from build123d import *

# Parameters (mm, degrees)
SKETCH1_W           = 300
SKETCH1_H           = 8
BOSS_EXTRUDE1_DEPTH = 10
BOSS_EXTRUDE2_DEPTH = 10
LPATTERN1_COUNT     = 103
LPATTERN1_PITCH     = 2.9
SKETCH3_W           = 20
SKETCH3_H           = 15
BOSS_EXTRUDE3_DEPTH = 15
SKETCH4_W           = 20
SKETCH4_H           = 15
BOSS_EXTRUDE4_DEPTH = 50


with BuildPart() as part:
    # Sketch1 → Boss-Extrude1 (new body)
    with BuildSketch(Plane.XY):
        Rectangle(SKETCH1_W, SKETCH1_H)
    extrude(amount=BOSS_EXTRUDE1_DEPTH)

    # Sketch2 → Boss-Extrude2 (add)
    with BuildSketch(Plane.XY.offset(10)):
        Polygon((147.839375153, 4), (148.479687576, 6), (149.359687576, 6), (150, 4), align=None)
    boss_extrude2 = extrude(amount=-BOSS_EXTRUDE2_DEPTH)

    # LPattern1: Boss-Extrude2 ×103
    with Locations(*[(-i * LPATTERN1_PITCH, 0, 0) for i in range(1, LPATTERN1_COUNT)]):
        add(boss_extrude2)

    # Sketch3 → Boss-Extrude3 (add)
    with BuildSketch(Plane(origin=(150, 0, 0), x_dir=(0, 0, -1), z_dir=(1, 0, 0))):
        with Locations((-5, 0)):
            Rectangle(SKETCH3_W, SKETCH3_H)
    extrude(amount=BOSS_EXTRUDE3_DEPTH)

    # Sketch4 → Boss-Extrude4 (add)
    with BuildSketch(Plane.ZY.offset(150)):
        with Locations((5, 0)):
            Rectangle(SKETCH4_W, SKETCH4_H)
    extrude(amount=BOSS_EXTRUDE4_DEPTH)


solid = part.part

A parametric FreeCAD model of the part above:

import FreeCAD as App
import Part
import Sketcher
Q = App.Units.Quantity

doc = App.newDocument("Part")
body = doc.addObject("PartDesign::Body", "Body")

# Sketch on XY plane
sketch1 = doc.addObject("Sketcher::SketchObject", "Sketch")
body.addObject(sketch1)
sketch1.AttachmentSupport = (doc.XY_Plane, [""])
sketch1.MapMode = "FlatFace"
sketch1.addGeometry([
    Part.LineSegment(App.Vector(-150, 4, 0), App.Vector(-150, -4, 0)),
    Part.LineSegment(App.Vector(-150, -4, 0), App.Vector(150, -4, 0)),
    Part.LineSegment(App.Vector(150, -4, 0), App.Vector(150, 4, 0)),
    Part.LineSegment(App.Vector(150, 4, 0), App.Vector(-150, 4, 0)),
], False)
sketch1.addConstraint([
    Sketcher.Constraint("Coincident", 0, 2, 1, 1),
    Sketcher.Constraint("Coincident", 1, 2, 2, 1),
    Sketcher.Constraint("Coincident", 2, 2, 3, 1),
    Sketcher.Constraint("Coincident", 3, 2, 0, 1),
    Sketcher.Constraint("Vertical", 0),
    Sketcher.Constraint("Horizontal", 1),
    Sketcher.Constraint("Vertical", 2),
    Sketcher.Constraint("Horizontal", 3),
    Sketcher.Constraint("Symmetric", 0, 2, 2, 2, -1, 1),
    Sketcher.Constraint("DistanceX", 1, 1, 1, 2, Q("300 mm")),
    Sketcher.Constraint("DistanceY", 0, 2, 0, 1, Q("8 mm")),
])
pad1 = doc.addObject("PartDesign::Pad", "Pad")
body.addObject(pad1)
pad1.Profile = sketch1
pad1.Length = 10

# Sketch on XY plane
sketch2 = doc.addObject("Sketcher::SketchObject", "Sketch001")
body.addObject(sketch2)
sketch2.AttachmentSupport = (doc.XY_Plane, [""])
sketch2.MapMode = "FlatFace"
sketch2.AttachmentOffset = App.Placement(App.Vector(0, 0, 10), App.Rotation())
sketch2.addGeometry([
    Part.LineSegment(App.Vector(148.479688, 6, 0), App.Vector(147.839375, 4, 0)),
    Part.LineSegment(App.Vector(147.839375, 4, 0), App.Vector(150, 4, 0)),
    Part.LineSegment(App.Vector(150, 4, 0), App.Vector(149.359688, 6, 0)),
    Part.LineSegment(App.Vector(149.359688, 6, 0), App.Vector(148.479688, 6, 0)),
], False)
sketch2.addConstraint([
    Sketcher.Constraint("Coincident", 0, 2, 1, 1),
    Sketcher.Constraint("Coincident", 1, 2, 2, 1),
    Sketcher.Constraint("Coincident", 2, 2, 3, 1),
    Sketcher.Constraint("Coincident", 3, 2, 0, 1),
    Sketcher.Constraint("Horizontal", 1),
    Sketcher.Constraint("Horizontal", 3),
    Sketcher.Constraint("Equal", 0, 2),
    Sketcher.Constraint("DistanceY", -1, 1, 0, 2, Q("4 mm")),
    Sketcher.Constraint("DistanceX", -1, 1, 1, 2, Q("150 mm")),
    Sketcher.Constraint("DistanceY", -1, 1, 2, 2, Q("6 mm")),
    Sketcher.Constraint("Distance", 0, Q("2.1 mm")),
    Sketcher.Constraint("DistanceX", 3, 2, 3, 1, Q("0.88 mm")),
])
pad2 = doc.addObject("PartDesign::Pad", "Pad001")
body.addObject(pad2)
pad2.Profile = sketch2
pad2.Length = 10
pad2.Reversed = True
doc.recompute()

linearpattern = doc.addObject("PartDesign::LinearPattern", "LinearPattern")
body.addObject(linearpattern)
linearpattern.Originals = [pad2]
linearpattern.Direction = (doc.X_Axis, [""])
linearpattern.Mode = "offset"
linearpattern.Offset = 2.9
linearpattern.Occurrences = 103
linearpattern.Reversed = True
body.Tip = linearpattern

# Sketch on YZ plane
sketch3 = doc.addObject("Sketcher::SketchObject", "Sketch002")
body.addObject(sketch3)
sketch3.AttachmentSupport = (doc.YZ_Plane, [""])
sketch3.MapMode = "FlatFace"
sketch3.AttachmentOffset = App.Placement(App.Vector(0, 0, 150), App.Rotation())
sketch3.addGeometry([
    Part.LineSegment(App.Vector(7.5, 15, 0), App.Vector(-7.5, 15, 0)),
    Part.LineSegment(App.Vector(-7.5, 15, 0), App.Vector(-7.5, -5, 0)),
    Part.LineSegment(App.Vector(-7.5, -5, 0), App.Vector(7.5, -5, 0)),
    Part.LineSegment(App.Vector(7.5, -5, 0), App.Vector(7.5, 15, 0)),
], False)
sketch3.addConstraint([
    Sketcher.Constraint("Coincident", 0, 2, 1, 1),
    Sketcher.Constraint("Coincident", 1, 2, 2, 1),
    Sketcher.Constraint("Coincident", 2, 2, 3, 1),
    Sketcher.Constraint("Coincident", 3, 2, 0, 1),
    Sketcher.Constraint("Horizontal", 0),
    Sketcher.Constraint("Vertical", 1),
    Sketcher.Constraint("Horizontal", 2),
    Sketcher.Constraint("Vertical", 3),
    Sketcher.Constraint("DistanceX", 0, 2, 0, 1, Q("15 mm")),
    Sketcher.Constraint("DistanceY", 1, 2, 1, 1, Q("20 mm")),
    Sketcher.Constraint("DistanceY", -1, 1, 0, 2, Q("15 mm")),
    Sketcher.Constraint("DistanceX", 0, 2, -1, 1, Q("7.5 mm")),
])
pad3 = doc.addObject("PartDesign::Pad", "Pad002")
body.addObject(pad3)
pad3.Profile = sketch3
pad3.Length = 15

# Sketch on YZ plane
sketch4 = doc.addObject("Sketcher::SketchObject", "Sketch003")
body.addObject(sketch4)
sketch4.AttachmentSupport = (doc.YZ_Plane, [""])
sketch4.MapMode = "FlatFace"
sketch4.AttachmentOffset = App.Placement(App.Vector(0, 0, -150), App.Rotation())
sketch4.addGeometry([
    Part.LineSegment(App.Vector(7.5, -5, 0), App.Vector(-7.5, -5, 0)),
    Part.LineSegment(App.Vector(-7.5, -5, 0), App.Vector(-7.5, 15, 0)),
    Part.LineSegment(App.Vector(-7.5, 15, 0), App.Vector(7.5, 15, 0)),
    Part.LineSegment(App.Vector(7.5, 15, 0), App.Vector(7.5, -5, 0)),
], False)
sketch4.addConstraint([
    Sketcher.Constraint("Coincident", 0, 2, 1, 1),
    Sketcher.Constraint("Coincident", 1, 2, 2, 1),
    Sketcher.Constraint("Coincident", 2, 2, 3, 1),
    Sketcher.Constraint("Coincident", 3, 2, 0, 1),
    Sketcher.Constraint("Horizontal", 0),
    Sketcher.Constraint("Vertical", 1),
    Sketcher.Constraint("Horizontal", 2),
    Sketcher.Constraint("Vertical", 3),
    Sketcher.Constraint("DistanceX", 0, 2, 0, 1, Q("15 mm")),
    Sketcher.Constraint("DistanceY", 1, 1, 1, 2, Q("20 mm")),
    Sketcher.Constraint("DistanceY", 0, 2, -1, 1, Q("5 mm")),
    Sketcher.Constraint("DistanceX", 0, 2, -1, 1, Q("7.5 mm")),
])
pad4 = doc.addObject("PartDesign::Pad", "Pad003")
body.addObject(pad4)
pad4.Profile = sketch4
pad4.Length = 50
pad4.Reversed = True

doc.recompute()
